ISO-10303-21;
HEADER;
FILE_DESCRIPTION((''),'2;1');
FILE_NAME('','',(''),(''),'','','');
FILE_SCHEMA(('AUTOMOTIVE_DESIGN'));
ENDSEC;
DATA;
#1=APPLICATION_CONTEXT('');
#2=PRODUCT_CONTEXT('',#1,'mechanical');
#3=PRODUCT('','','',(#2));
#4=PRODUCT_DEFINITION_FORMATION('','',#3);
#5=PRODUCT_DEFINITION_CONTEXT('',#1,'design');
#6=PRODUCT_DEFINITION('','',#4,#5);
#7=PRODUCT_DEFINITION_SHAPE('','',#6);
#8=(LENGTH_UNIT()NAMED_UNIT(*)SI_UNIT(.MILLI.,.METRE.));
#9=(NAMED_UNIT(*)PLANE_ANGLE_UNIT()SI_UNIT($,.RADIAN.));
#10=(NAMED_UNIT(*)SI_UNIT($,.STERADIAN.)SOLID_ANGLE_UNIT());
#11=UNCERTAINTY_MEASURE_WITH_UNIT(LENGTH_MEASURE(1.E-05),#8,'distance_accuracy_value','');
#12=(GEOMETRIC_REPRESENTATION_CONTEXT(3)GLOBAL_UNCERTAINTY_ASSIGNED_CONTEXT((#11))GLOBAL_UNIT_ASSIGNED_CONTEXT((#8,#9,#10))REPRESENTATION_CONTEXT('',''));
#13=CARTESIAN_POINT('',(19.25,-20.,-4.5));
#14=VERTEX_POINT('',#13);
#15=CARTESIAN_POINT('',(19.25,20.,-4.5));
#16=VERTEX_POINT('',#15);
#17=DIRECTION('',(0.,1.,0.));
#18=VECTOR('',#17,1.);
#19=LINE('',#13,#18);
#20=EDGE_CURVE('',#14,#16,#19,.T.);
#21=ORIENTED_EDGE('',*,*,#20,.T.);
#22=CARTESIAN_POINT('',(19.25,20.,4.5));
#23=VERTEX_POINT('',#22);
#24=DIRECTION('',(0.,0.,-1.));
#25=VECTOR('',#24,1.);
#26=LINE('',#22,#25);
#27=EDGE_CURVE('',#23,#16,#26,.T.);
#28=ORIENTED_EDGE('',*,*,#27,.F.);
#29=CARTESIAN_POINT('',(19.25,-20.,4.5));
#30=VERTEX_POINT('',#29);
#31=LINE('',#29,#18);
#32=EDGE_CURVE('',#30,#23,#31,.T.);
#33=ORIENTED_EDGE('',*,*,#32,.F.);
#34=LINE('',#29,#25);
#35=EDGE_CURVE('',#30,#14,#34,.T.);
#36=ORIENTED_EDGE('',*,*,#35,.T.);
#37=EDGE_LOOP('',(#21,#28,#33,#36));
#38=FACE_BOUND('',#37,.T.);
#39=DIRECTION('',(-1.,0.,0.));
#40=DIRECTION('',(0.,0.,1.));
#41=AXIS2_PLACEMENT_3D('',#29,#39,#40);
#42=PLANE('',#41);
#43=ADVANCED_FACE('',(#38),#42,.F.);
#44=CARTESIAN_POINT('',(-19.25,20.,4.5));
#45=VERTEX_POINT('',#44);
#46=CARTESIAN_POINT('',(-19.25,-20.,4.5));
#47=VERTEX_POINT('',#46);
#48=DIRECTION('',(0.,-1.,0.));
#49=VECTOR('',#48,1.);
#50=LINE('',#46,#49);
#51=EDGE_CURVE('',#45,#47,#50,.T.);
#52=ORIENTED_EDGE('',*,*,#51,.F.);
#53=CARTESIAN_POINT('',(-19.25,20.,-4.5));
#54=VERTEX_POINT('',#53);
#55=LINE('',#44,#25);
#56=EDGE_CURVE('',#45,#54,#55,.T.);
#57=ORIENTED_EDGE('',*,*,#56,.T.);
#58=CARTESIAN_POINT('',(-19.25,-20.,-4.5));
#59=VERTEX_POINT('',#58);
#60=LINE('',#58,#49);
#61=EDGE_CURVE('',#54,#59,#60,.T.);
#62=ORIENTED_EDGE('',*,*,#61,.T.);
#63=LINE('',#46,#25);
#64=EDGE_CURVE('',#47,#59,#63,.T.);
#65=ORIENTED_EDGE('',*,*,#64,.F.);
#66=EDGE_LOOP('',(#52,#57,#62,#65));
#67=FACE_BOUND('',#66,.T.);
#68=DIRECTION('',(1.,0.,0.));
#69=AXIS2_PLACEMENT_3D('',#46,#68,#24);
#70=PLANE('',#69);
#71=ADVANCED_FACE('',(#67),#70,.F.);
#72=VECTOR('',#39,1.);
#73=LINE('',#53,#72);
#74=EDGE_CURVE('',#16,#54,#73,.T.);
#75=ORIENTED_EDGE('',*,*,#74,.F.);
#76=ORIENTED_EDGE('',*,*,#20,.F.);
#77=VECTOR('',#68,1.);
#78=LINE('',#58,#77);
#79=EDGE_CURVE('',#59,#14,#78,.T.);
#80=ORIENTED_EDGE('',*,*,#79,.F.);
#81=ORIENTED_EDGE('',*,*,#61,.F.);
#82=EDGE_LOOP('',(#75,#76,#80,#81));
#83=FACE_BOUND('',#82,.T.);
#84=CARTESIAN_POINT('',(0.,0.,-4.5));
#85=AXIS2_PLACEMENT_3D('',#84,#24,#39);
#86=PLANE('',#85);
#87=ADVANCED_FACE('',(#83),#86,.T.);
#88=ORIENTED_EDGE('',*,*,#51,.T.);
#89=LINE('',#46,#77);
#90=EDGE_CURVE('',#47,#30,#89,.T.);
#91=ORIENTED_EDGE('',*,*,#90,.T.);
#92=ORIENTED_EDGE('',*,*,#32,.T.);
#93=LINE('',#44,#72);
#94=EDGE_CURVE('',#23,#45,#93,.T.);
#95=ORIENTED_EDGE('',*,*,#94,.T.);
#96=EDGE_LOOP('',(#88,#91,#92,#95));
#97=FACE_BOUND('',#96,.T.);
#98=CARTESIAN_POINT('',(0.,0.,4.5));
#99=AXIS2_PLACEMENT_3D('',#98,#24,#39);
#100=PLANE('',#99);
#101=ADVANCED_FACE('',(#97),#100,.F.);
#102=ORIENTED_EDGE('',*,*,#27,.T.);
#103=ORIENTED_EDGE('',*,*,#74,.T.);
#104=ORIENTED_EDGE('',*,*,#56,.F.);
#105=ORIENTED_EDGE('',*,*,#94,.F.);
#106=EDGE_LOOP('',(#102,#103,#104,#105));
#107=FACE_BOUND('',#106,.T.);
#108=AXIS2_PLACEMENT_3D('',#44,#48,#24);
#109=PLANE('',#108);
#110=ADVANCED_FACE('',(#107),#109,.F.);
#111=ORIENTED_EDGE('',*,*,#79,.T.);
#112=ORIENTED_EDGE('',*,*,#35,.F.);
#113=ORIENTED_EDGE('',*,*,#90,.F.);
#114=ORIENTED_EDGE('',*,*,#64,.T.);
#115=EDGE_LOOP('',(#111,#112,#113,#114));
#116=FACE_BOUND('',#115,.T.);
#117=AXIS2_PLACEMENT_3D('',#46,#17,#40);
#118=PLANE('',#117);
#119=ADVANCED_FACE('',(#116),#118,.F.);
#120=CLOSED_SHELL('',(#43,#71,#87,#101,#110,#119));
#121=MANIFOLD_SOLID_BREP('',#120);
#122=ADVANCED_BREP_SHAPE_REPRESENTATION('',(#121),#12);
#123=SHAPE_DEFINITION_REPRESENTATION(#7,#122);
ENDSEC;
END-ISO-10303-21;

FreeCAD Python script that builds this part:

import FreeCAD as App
import Part
import Sketcher


def add_polygon(sketch, points):
    """Adds a closed chain of lines whose ends are joined by coincident constraints."""
    first, n = sketch.GeometryCount, len(points)
    for a, b in zip(points, points[1:] + points[:1]):
        sketch.addGeometry(Part.LineSegment(App.Vector(*a, 0), App.Vector(*b, 0)), False)
    for i in range(n):
        sketch.addConstraint(Sketcher.Constraint("Coincident", first + i, 2, first + (i + 1) % n, 1))

doc = App.newDocument("Part")
body = doc.addObject("PartDesign::Body", "Body")

sketch1 = doc.addObject("Sketcher::SketchObject", "Sketch")
body.addObject(sketch1)
sketch1.AttachmentSupport = (doc.XY_Plane, [""])
sketch1.MapMode = "FlatFace"
add_polygon(sketch1, [(-19.25, 20), (-19.25, -20), (19.25, -20), (19.25, 20)])
sketch1.addConstraint([
    Sketcher.Constraint("Vertical", 0),
    Sketcher.Constraint("Horizontal", 1),
    Sketcher.Constraint("Vertical", 2),
    Sketcher.Constraint("Horizontal", 3),
    Sketcher.Constraint("Symmetric", 0, 2, 2, 2, -1, 1),
    Sketcher.Constraint("DistanceY", 0, 2, 0, 1, 40.0),
    Sketcher.Constraint("DistanceX", 1, 1, 1, 2, 38.5),
])
pad1 = doc.addObject("PartDesign::Pad", "Pad")
body.addObject(pad1)
pad1.Profile = sketch1
pad1.Length = 9
pad1.Midplane = True

doc.recompute()
